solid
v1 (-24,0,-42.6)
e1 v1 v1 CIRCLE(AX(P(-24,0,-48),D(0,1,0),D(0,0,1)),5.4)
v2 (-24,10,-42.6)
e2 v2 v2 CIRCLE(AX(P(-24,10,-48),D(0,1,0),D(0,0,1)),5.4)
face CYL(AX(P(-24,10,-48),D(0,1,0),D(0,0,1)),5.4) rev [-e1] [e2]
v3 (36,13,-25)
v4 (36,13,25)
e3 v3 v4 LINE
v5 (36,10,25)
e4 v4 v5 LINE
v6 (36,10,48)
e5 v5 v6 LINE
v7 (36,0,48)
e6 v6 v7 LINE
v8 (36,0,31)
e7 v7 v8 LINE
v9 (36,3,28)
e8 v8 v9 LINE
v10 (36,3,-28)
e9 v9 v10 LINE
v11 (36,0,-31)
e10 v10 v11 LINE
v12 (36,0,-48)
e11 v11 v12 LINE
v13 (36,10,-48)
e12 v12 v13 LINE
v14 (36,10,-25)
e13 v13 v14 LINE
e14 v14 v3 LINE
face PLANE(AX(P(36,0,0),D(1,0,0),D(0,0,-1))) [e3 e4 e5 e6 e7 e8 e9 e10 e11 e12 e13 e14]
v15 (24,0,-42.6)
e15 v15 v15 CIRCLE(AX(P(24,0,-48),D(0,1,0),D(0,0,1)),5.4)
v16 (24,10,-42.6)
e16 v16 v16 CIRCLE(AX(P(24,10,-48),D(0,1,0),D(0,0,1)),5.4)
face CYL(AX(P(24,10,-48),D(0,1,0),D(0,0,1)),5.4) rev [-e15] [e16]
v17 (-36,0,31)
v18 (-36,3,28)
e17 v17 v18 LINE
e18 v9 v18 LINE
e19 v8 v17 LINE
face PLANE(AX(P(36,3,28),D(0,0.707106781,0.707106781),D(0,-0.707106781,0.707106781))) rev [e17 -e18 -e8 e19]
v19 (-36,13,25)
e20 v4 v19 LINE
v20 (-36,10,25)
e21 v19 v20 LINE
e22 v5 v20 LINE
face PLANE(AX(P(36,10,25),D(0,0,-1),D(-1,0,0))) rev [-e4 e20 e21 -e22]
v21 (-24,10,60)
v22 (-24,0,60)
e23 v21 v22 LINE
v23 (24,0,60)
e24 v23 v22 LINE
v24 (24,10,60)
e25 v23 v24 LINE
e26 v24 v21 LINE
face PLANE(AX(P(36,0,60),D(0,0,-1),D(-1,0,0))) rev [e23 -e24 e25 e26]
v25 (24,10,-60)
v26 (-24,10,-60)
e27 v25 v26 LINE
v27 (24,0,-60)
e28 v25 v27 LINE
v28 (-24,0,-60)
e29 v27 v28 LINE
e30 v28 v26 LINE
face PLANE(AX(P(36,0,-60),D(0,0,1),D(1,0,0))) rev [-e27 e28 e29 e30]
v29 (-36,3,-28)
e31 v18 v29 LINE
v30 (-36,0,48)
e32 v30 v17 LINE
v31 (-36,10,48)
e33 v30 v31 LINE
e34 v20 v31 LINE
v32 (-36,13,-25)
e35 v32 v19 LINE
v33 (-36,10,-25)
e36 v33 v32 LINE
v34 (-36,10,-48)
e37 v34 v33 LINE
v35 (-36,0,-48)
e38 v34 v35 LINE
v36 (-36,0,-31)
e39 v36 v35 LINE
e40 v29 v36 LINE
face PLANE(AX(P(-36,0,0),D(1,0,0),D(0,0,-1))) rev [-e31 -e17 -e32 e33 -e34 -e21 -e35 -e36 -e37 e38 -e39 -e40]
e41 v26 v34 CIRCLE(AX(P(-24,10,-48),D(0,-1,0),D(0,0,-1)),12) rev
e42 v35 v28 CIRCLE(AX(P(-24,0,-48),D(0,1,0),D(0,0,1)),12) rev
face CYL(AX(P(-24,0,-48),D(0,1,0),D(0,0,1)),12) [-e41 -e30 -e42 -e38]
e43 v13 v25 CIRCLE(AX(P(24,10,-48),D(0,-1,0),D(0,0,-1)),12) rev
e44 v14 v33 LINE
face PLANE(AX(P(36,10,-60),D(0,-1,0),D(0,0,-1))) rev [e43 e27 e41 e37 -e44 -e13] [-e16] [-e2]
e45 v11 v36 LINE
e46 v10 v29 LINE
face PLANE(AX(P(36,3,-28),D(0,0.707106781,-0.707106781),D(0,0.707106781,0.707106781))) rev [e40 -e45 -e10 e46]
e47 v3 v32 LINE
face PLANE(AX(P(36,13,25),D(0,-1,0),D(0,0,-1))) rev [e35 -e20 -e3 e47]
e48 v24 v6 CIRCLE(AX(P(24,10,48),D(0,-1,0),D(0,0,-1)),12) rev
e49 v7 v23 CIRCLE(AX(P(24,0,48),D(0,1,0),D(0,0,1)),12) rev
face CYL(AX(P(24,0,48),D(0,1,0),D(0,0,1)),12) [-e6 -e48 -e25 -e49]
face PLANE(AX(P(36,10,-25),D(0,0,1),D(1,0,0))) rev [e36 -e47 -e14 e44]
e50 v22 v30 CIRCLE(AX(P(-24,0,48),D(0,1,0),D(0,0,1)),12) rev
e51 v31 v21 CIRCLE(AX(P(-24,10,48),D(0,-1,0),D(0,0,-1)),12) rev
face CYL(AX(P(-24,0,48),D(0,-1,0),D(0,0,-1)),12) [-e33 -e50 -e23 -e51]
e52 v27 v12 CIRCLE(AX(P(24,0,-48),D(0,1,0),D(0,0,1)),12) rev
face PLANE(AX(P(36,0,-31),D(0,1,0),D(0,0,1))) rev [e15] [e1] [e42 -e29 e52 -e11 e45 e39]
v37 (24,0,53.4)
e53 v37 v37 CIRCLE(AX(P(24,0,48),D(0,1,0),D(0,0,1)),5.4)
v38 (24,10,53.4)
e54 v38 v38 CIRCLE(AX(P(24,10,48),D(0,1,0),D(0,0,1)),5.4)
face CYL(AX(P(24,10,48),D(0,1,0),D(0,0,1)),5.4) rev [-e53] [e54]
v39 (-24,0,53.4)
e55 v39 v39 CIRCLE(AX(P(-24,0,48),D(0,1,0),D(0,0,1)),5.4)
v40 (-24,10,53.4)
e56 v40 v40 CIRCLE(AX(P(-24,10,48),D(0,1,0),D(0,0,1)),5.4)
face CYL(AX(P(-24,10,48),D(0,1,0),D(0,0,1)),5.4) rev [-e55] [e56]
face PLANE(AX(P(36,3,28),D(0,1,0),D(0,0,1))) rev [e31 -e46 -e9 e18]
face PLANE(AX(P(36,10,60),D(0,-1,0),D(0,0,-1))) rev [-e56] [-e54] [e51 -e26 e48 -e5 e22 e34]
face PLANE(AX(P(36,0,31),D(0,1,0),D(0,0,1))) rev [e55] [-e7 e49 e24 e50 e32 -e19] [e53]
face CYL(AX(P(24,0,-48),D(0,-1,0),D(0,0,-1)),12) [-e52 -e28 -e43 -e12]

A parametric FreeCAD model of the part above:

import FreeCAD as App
import Part
import Sketcher

V = App.Vector


def edges_at(feature, points):
    """Names of the edges that pass closest to the given points."""
    edges = feature.Shape.Edges
    near = lambda p: min(range(len(edges)), key=lambda i: edges[i].distToShape(Part.Vertex(*p))[0])
    return sorted({f"Edge{near(p) + 1}" for p in points})

doc = App.newDocument("Part")
body = doc.addObject("PartDesign::Body", "Body")

# Sketch on YZ plane
sketch1 = body.newObject("Sketcher::SketchObject", "Sketch")
sketch1.AttachmentSupport = (doc.getObject("YZ_Plane"), [""])
sketch1.MapMode = "FlatFace"
sketch1.addGeometry([
    Part.LineSegment(V(0, 31, 0), V(3, 28, 0)),  # 0
    Part.LineSegment(V(3, 28, 0), V(3, -28, 0)),  # 1
    Part.LineSegment(V(3, -28, 0), V(0, -31, 0)),  # 2
    Part.LineSegment(V(0, -31, 0), V(0, -60, 0)),  # 3
    Part.LineSegment(V(0, -60, 0), V(10, -60, 0)),  # 4
    Part.LineSegment(V(10, -60, 0), V(10, -25, 0)),  # 5
    Part.LineSegment(V(10, -25, 0), V(13, -25, 0)),  # 6
    Part.LineSegment(V(13, -25, 0), V(13, 25, 0)),  # 7
    Part.LineSegment(V(13, 25, 0), V(10, 25, 0)),  # 8
    Part.LineSegment(V(10, 25, 0), V(10, 60, 0)),  # 9
    Part.LineSegment(V(10, 60, 0), V(0, 60, 0)),  # 10
    Part.LineSegment(V(0, 60, 0), V(0, 31, 0)),  # 11
], False)
sketch1.addConstraint([
    Sketcher.Constraint("Coincident", 0, 2, 1, 1),
    Sketcher.Constraint("Coincident", 1, 2, 2, 1),
    Sketcher.Constraint("Coincident", 2, 2, 3, 1),
    Sketcher.Constraint("Coincident", 3, 2, 4, 1),
    Sketcher.Constraint("Coincident", 4, 2, 5, 1),
    Sketcher.Constraint("Coincident", 5, 2, 6, 1),
    Sketcher.Constraint("Coincident", 6, 2, 7, 1),
    Sketcher.Constraint("Coincident", 7, 2, 8, 1),
    Sketcher.Constraint("Coincident", 8, 2, 9, 1),
    Sketcher.Constraint("Coincident", 9, 2, 10, 1),
    Sketcher.Constraint("Coincident", 10, 2, 11, 1),
    Sketcher.Constraint("Coincident", 11, 2, 0, 1),
    Sketcher.Constraint("Vertical", 1),
    Sketcher.Constraint("Vertical", 3),
    Sketcher.Constraint("Horizontal", 4),
    Sketcher.Constraint("Vertical", 5),
    Sketcher.Constraint("Horizontal", 6),
    Sketcher.Constraint("Vertical", 7),
    Sketcher.Constraint("Horizontal", 8),
    Sketcher.Constraint("Vertical", 9),
    Sketcher.Constraint("Horizontal", 10),
    Sketcher.Constraint("Vertical", 11),
    Sketcher.Constraint("Symmetric", 3, 2, 10, 2, -1, 1),
    Sketcher.Constraint("Symmetric", 5, 2, 8, 2, -1),
    Sketcher.Constraint("Symmetric", 2, 2, 11, 2, -1),
    Sketcher.Constraint("Perpendicular", 0, 2),
    Sketcher.Constraint("Equal", 0, 2),
    Sketcher.Constraint("DistanceX", 4, 1, 4, 2, 10.0),
    Sketcher.Constraint("DistanceX", 6, 1, 6, 2, 3.0),
    Sketcher.Constraint("DistanceY", 1, 2, 1, 1, 56.0),
    Sketcher.Constraint("DistanceY", 3, 2, 3, 1, 29.0),
    Sketcher.Constraint("DistanceY", 5, 1, 5, 2, 35.0),
    Sketcher.Constraint("DistanceY", 7, 1, 7, 2, 50.0),
])
pad1 = body.newObject("PartDesign::Pad", "Pad")
pad1.Profile = sketch1
pad1.Length = 72
pad1.Midplane = True
doc.recompute()

fillet = body.newObject("PartDesign::Fillet", "Fillet")
fillet.Base = (pad1, edges_at(pad1, [
    (-36, 5, 60),
    (-36, 5, -60),
    (36, 5, -60),
    (36, 5, 60),
]))
fillet.Radius = 12

# Sketch on XZ plane
sketch2 = body.newObject("Sketcher::SketchObject", "Sketch001")
sketch2.AttachmentSupport = (doc.getObject("XZ_Plane"), [""])
sketch2.MapMode = "FlatFace"
sketch2.AttachmentOffset = App.Placement(V(0, 0, -10), App.Rotation())
sketch2.addGeometry([
    Part.Circle(V(24, 48, 0), V(0, 0, 1), 5),
    Part.Circle(V(-24, 48, 0), V(0, 0, 1), 5),
    Part.Circle(V(24, -48, 0), V(0, 0, 1), 5),
    Part.Circle(V(-24, -48, 0), V(0, 0, 1), 5),
], False)
sketch2.addConstraint([
    Sketcher.Constraint("Equal", 0, 1),
    Sketcher.Constraint("Equal", 1, 2),
    Sketcher.Constraint("Equal", 2, 3),
    Sketcher.Constraint("Symmetric", 1, 3, 2, 3, -1, 1),
    Sketcher.Constraint("Symmetric", 0, 3, 3, 3, -1, 1),
    Sketcher.Constraint("Symmetric", 0, 3, 1, 3, -2),
    Sketcher.Constraint("Diameter", 0, 10.8),
    Sketcher.Constraint("DistanceX", -1, 1, 0, 3, 24.0),
    Sketcher.Constraint("DistanceY", -1, 1, 0, 3, 48.0),
])
doc.recompute()
hole = body.newObject("PartDesign::Hole", "Hole")
hole.Profile = sketch2
hole.ThreadType = "None"
hole.Diameter = 10.8
hole.DepthType = "ThroughAll"
hole.Reversed = True

doc.recompute()
